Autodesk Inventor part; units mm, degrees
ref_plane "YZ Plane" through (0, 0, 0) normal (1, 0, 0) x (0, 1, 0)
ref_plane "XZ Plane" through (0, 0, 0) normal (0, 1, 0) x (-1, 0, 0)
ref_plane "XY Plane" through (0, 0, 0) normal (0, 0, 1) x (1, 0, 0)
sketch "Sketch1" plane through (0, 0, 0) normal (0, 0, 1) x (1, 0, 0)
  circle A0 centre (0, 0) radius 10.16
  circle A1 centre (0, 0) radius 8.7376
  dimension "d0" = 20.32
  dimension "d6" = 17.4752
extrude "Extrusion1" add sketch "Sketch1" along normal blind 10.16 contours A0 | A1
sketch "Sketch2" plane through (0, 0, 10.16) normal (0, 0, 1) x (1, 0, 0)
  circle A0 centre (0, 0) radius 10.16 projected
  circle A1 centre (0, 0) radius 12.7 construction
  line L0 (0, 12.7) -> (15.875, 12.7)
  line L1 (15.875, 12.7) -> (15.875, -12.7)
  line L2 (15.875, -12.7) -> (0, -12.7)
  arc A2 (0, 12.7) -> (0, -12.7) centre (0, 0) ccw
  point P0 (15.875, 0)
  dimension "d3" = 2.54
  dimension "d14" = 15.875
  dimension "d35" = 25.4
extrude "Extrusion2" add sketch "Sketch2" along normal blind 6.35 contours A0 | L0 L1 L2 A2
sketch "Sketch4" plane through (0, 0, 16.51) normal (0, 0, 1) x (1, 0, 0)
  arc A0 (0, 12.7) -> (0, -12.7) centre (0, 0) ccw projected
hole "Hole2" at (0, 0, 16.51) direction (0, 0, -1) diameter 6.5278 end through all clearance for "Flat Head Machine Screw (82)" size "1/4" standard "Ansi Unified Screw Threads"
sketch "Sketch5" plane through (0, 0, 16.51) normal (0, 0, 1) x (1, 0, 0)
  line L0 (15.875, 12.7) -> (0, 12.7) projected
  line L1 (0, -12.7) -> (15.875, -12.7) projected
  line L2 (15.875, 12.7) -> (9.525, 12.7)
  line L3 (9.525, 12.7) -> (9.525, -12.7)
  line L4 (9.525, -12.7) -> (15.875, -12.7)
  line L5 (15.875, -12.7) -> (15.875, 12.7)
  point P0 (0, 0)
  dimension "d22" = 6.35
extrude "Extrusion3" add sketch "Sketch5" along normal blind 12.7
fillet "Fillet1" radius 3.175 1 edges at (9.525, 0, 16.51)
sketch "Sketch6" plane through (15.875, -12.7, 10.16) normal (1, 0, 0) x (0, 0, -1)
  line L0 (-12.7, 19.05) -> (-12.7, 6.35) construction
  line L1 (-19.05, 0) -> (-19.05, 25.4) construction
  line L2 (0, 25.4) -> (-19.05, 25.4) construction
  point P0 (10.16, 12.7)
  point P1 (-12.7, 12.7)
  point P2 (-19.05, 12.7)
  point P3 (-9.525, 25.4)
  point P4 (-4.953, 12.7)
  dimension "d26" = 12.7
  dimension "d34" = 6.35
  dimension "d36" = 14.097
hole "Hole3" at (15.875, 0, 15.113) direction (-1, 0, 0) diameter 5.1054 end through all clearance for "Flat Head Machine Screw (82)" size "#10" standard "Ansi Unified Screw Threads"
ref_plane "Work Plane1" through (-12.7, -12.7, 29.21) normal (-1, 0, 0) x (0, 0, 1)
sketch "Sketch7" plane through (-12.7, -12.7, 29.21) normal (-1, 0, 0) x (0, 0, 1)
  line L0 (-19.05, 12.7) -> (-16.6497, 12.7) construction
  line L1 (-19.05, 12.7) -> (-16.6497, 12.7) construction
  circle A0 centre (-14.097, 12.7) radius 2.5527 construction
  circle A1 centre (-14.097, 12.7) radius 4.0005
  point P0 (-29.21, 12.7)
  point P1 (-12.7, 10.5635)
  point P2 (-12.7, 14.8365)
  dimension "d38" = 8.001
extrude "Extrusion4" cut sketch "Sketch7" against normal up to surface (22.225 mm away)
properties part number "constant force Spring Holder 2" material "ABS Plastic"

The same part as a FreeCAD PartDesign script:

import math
import FreeCAD as App
import Part
import Sketcher
from FreeCAD import Vector
Q = App.Units.Quantity


def edges_at(feature, points):
    """Names of the edges that pass closest to the given points."""
    edges = feature.Shape.Edges
    near = lambda p: min(range(len(edges)), key=lambda i: edges[i].distToShape(Part.Vertex(*p))[0])
    return sorted({f"Edge{near(p) + 1}" for p in points})

doc = App.newDocument("Part")
body = doc.addObject("PartDesign::Body", "Body")

sketch1 = doc.addObject("Sketcher::SketchObject", "Sketch")
body.addObject(sketch1)
sketch1.AttachmentSupport = (doc.XY_Plane, [""])
sketch1.MapMode = "FlatFace"
sketch1.addGeometry(Part.Circle(Vector(0, 0, 0), Vector(0, 0, 1), 10), False)
sketch1.addConstraint(Sketcher.Constraint("Coincident", 0, 3, -1, 1))
sketch1.addConstraint(Sketcher.Constraint("Diameter", 0, Q("0.8 in")))
pad1 = doc.addObject("PartDesign::Pad", "Pad")
body.addObject(pad1)
pad1.Profile = sketch1
pad1.Length = Q("0.4 in")

sketch2 = doc.addObject("Sketcher::SketchObject", "Sketch001")
body.addObject(sketch2)
sketch2.AttachmentSupport = (doc.XY_Plane, [""])
sketch2.MapMode = "FlatFace"
sketch2.AttachmentOffset = App.Placement(Vector(0, 0, 0.4 * 25.4), App.Rotation())
sketch2.addGeometry(Part.LineSegment(Vector(16, 13, 0), Vector(0, 13, 0)), False)
sketch2.addGeometry(Part.ArcOfCircle(Part.Circle(Vector(0, 0, 0), Vector(0, 0, 1), 13), math.radians(90), math.radians(270)), False)
sketch2.addGeometry(Part.LineSegment(Vector(0, -13, 0), Vector(16, -13, 0)), False)
sketch2.addGeometry(Part.LineSegment(Vector(16, -13, 0), Vector(16, 13, 0)), False)
sketch2.addConstraint(Sketcher.Constraint("Tangent", 0, 2, 1, 1))
sketch2.addConstraint(Sketcher.Constraint("Tangent", 1, 2, 2, 1))
sketch2.addConstraint(Sketcher.Constraint("Coincident", 2, 2, 3, 1))
sketch2.addConstraint(Sketcher.Constraint("Coincident", 3, 2, 0, 1))
sketch2.addConstraint(Sketcher.Constraint("Horizontal", 0))
sketch2.addConstraint(Sketcher.Constraint("Horizontal", 2))
sketch2.addConstraint(Sketcher.Constraint("Vertical", 3))
sketch2.addConstraint(Sketcher.Constraint("Coincident", 1, 3, -1, 1))
sketch2.addConstraint(Sketcher.Constraint("Radius", 1, Q("0.5 in")))
sketch2.addConstraint(Sketcher.Constraint("DistanceX", 0, 2, 0, 1, Q("0.625 in")))
pad2 = doc.addObject("PartDesign::Pad", "Pad001")
body.addObject(pad2)
pad2.Profile = sketch2
pad2.Length = Q("0.25 in")

sketch3 = doc.addObject("Sketcher::SketchObject", "Sketch002")
body.addObject(sketch3)
sketch3.AttachmentSupport = (doc.XY_Plane, [""])
sketch3.MapMode = "FlatFace"
sketch3.AttachmentOffset = App.Placement(Vector(0, 0, 0.65 * 25.4), App.Rotation())
sketch3.addGeometry(Part.Circle(Vector(0, 0, 0), Vector(0, 0, 1), 3.3), False)
sketch3.addConstraint(Sketcher.Constraint("Coincident", 0, 3, -1, 1))
sketch3.addConstraint(Sketcher.Constraint("Diameter", 0, Q("0.257 in")))
doc.recompute()
hole = doc.addObject("PartDesign::Hole", "Hole")
body.addObject(hole)
hole.Profile = sketch3
hole.ThreadType = "None"
hole.Diameter = Q("0.257 in")
hole.DepthType = "ThroughAll"

sketch4 = doc.addObject("Sketcher::SketchObject", "Sketch003")
body.addObject(sketch4)
sketch4.AttachmentSupport = (doc.XY_Plane, [""])
sketch4.MapMode = "FlatFace"
sketch4.AttachmentOffset = App.Placement(Vector(0, 0, 0.65 * 25.4), App.Rotation())
sketch4.addGeometry(Part.LineSegment(Vector(16, -13, 0), Vector(16, 13, 0)), False)
sketch4.addGeometry(Part.LineSegment(Vector(16, 13, 0), Vector(10, 13, 0)), False)
sketch4.addGeometry(Part.LineSegment(Vector(10, 13, 0), Vector(10, -13, 0)), False)
sketch4.addGeometry(Part.LineSegment(Vector(10, -13, 0), Vector(16, -13, 0)), False)
sketch4.addConstraint(Sketcher.Constraint("Coincident", 0, 2, 1, 1))
sketch4.addConstraint(Sketcher.Constraint("Coincident", 1, 2, 2, 1))
sketch4.addConstraint(Sketcher.Constraint("Coincident", 2, 2, 3, 1))
sketch4.addConstraint(Sketcher.Constraint("Coincident", 3, 2, 0, 1))
sketch4.addConstraint(Sketcher.Constraint("Vertical", 0))
sketch4.addConstraint(Sketcher.Constraint("Horizontal", 1))
sketch4.addConstraint(Sketcher.Constraint("Vertical", 2))
sketch4.addConstraint(Sketcher.Constraint("Horizontal", 3))
sketch4.addConstraint(Sketcher.Constraint("DistanceX", 1, 2, 1, 1, Q("0.25 in")))
sketch4.addConstraint(Sketcher.Constraint("DistanceY", 0, 1, 0, 2, Q("1 in")))
sketch4.addConstraint(Sketcher.Constraint("DistanceY", -1, 1, 0, 2, Q("0.5 in")))
sketch4.addConstraint(Sketcher.Constraint("DistanceX", -1, 1, 0, 2, Q("0.625 in")))
pad3 = doc.addObject("PartDesign::Pad", "Pad002")
body.addObject(pad3)
pad3.Profile = sketch4
pad3.Length = Q("0.5 in")
doc.recompute()

fillet = doc.addObject("PartDesign::Fillet", "Fillet")
body.addObject(fillet)
fillet.Base = (pad3, edges_at(pad3, [(9.525, 0, 16.51)]))
fillet.Radius = Q("0.125 in")

sketch5 = doc.addObject("Sketcher::SketchObject", "Sketch004")
body.addObject(sketch5)
sketch5.AttachmentSupport = (doc.YZ_Plane, [""])
sketch5.MapMode = "FlatFace"
sketch5.AttachmentOffset = App.Placement(Vector(0, 0, 0.625 * 25.4), App.Rotation())
sketch5.addGeometry(Part.Circle(Vector(0, 15.1, 0), Vector(0, 0, 1), 2.6), False)
sketch5.addConstraint(Sketcher.Constraint("PointOnObject", 0, 3, -2))
sketch5.addConstraint(Sketcher.Constraint("Diameter", 0, Q("0.201 in")))
sketch5.addConstraint(Sketcher.Constraint("DistanceY", -1, 1, 0, 3, Q("0.595 in")))
doc.recompute()
hole2 = doc.addObject("PartDesign::Hole", "Hole001")
body.addObject(hole2)
hole2.Profile = sketch5
hole2.ThreadType = "None"
hole2.Diameter = Q("0.201 in")
hole2.DepthType = "ThroughAll"

sketch6 = doc.addObject("Sketcher::SketchObject", "Sketch005")
body.addObject(sketch6)
sketch6.AttachmentSupport = (doc.YZ_Plane, [""])
sketch6.MapMode = "FlatFace"
sketch6.AttachmentOffset = App.Placement(Vector(0, 0, -0.5 * 25.4), App.Rotation())
sketch6.addGeometry(Part.Circle(Vector(0, 15.1, 0), Vector(0, 0, 1), 4), False)
sketch6.addConstraint(Sketcher.Constraint("PointOnObject", 0, 3, -2))
sketch6.addConstraint(Sketcher.Constraint("Diameter", 0, Q("0.315 in")))
sketch6.addConstraint(Sketcher.Constraint("DistanceY", -1, 1, 0, 3, Q("0.595 in")))
pocket1 = doc.addObject("PartDesign::Pocket", "Pocket")
body.addObject(pocket1)
pocket1.Profile = sketch6
pocket1.Length = Q("0.875 in")
pocket1.Reversed = True

doc.recompute()
